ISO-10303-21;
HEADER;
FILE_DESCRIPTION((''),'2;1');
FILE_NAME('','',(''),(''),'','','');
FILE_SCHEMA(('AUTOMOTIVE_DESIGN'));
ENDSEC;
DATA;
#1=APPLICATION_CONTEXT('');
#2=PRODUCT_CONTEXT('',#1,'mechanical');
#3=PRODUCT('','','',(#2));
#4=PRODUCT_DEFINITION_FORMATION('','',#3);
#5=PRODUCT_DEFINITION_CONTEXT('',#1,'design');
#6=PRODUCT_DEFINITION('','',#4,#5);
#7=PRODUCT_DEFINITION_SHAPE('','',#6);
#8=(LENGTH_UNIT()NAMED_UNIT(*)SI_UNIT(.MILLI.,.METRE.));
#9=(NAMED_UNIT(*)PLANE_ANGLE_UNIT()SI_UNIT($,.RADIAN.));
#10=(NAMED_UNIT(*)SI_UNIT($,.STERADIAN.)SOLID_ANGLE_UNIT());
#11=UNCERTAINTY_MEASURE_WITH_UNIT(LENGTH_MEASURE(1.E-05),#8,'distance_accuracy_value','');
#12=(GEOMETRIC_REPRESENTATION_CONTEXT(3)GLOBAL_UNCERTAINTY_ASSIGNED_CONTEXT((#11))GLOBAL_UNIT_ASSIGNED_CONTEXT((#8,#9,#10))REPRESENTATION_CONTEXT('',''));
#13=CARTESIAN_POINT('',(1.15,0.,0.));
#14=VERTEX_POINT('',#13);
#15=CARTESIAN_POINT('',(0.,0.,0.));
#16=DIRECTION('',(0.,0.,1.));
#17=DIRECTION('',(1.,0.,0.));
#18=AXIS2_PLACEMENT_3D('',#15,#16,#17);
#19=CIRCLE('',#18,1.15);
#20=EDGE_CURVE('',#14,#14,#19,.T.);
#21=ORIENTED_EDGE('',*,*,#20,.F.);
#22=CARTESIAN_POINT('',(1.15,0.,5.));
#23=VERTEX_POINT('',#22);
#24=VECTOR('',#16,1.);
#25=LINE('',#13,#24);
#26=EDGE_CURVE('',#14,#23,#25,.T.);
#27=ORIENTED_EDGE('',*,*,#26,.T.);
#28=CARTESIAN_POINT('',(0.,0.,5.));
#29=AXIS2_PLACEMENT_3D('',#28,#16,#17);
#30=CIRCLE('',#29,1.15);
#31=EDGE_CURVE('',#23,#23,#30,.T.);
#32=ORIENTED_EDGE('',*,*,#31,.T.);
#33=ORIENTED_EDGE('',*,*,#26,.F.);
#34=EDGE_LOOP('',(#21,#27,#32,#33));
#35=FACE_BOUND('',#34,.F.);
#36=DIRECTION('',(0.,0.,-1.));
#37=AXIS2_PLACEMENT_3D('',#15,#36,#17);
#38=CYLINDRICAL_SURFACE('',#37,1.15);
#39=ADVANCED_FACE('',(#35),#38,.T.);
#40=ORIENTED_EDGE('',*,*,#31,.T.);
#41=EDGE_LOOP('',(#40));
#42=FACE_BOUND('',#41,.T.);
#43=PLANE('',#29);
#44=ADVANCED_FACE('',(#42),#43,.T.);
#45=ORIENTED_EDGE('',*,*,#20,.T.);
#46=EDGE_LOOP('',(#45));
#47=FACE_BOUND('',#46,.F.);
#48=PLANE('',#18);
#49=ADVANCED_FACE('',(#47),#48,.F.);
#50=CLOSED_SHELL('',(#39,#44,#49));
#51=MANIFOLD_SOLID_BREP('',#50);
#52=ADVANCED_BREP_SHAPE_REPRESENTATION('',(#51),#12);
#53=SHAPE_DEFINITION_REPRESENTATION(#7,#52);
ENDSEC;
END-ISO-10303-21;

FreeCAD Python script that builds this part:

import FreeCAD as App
import Part
import Sketcher
from FreeCAD import Vector
Q = App.Units.Quantity

doc = App.newDocument("Part")
body = doc.addObject("PartDesign::Body", "Body")

sketch1 = body.newObject("Sketcher::SketchObject", "Sketch")
sketch1.AttachmentSupport = (doc.getObject("XY_Plane"), [""])
sketch1.MapMode = "FlatFace"
sketch1.addGeometry(Part.Circle(Vector(0, 0, 0), Vector(0, 0, 1), 1.15), False)
sketch1.addConstraint([
    Sketcher.Constraint("Coincident", 0, 3, -1, 1),
    Sketcher.Constraint("Diameter", 0, Q("2.3 mm")),
])
pad1 = body.newObject("PartDesign::Pad", "Pad")
pad1.Profile = sketch1
pad1.Length = 5

doc.recompute()
